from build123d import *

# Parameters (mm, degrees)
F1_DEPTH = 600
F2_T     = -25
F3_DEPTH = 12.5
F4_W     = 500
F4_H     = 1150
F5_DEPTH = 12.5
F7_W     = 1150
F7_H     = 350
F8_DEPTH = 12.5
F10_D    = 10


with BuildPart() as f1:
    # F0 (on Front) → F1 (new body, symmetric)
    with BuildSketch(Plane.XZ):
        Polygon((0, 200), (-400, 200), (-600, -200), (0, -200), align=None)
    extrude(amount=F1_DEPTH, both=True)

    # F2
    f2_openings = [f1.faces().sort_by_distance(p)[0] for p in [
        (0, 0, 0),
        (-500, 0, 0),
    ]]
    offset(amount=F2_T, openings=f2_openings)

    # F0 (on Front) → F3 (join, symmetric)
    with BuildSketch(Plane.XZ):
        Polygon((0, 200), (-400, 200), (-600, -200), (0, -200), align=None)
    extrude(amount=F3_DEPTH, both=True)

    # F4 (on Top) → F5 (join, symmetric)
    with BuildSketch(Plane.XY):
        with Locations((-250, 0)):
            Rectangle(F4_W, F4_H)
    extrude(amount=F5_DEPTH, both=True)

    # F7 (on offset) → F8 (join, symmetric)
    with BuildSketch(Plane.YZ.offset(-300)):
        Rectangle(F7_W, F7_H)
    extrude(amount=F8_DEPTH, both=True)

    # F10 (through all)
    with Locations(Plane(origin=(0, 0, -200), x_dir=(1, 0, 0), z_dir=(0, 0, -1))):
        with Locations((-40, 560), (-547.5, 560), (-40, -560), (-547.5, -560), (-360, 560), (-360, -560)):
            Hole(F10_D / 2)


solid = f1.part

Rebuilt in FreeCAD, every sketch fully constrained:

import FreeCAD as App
import Part
import Sketcher
from FreeCAD import Vector
Q = App.Units.Quantity


def faces_at(feature, points):
    """Names of the faces that lie closest to the given points."""
    faces = feature.Shape.Faces
    near = lambda p: min(range(len(faces)), key=lambda i: faces[i].distToShape(Part.Vertex(*p))[0])
    return sorted({f"Face{near(p) + 1}" for p in points})

doc = App.newDocument("Part")
body = doc.addObject("PartDesign::Body", "Body")

sketch1 = body.newObject("Sketcher::SketchObject", "Sketch")
sketch1.AttachmentSupport = (doc.getObject("XZ_Plane"), [""])
sketch1.MapMode = "FlatFace"
sketch1.addGeometry([
    Part.LineSegment(Vector(0, 200, 0), Vector(-400, 200, 0)),
    Part.LineSegment(Vector(-400, 200, 0), Vector(-600, -200, 0)),
    Part.LineSegment(Vector(-600, -200, 0), Vector(0, -200, 0)),
    Part.LineSegment(Vector(0, -200, 0), Vector(0, 200, 0)),
], False)
sketch1.addConstraint([
    Sketcher.Constraint("Coincident", 0, 2, 1, 1),
    Sketcher.Constraint("Coincident", 1, 2, 2, 1),
    Sketcher.Constraint("Coincident", 2, 2, 3, 1),
    Sketcher.Constraint("Coincident", 3, 2, 0, 1),
    Sketcher.Constraint("Horizontal", 0),
    Sketcher.Constraint("Horizontal", 2),
    Sketcher.Constraint("Vertical", 3),
    Sketcher.Constraint("Symmetric", 2, 2, 3, 2, -1, 1),
    Sketcher.Constraint("Equal", 0, 3),
    Sketcher.Constraint("DistanceX", 0, 2, 0, 1, Q("400 mm")),
    Sketcher.Constraint("DistanceX", 2, 1, 2, 2, Q("600 mm")),
])
pad1 = body.newObject("PartDesign::Pad", "Pad")
pad1.Profile = sketch1
pad1.Length = 1200
pad1.Midplane = True
doc.recompute()

thickness = body.newObject("PartDesign::Thickness", "Thickness")
thickness.Base = (pad1, faces_at(pad1, [(0, 0, 0), (-500, 0, 0)]))
thickness.Value = 25
thickness.Reversed = True
thickness.Join = "Arc"

sketch2 = body.newObject("Sketcher::SketchObject", "Sketch001")
sketch2.AttachmentSupport = (doc.getObject("XZ_Plane"), [""])
sketch2.MapMode = "FlatFace"
sketch2.addGeometry([
    Part.LineSegment(Vector(0, 200, 0), Vector(-400, 200, 0)),
    Part.LineSegment(Vector(-400, 200, 0), Vector(-600, -200, 0)),
    Part.LineSegment(Vector(-600, -200, 0), Vector(0, -200, 0)),
    Part.LineSegment(Vector(0, -200, 0), Vector(0, 200, 0)),
], False)
sketch2.addConstraint([
    Sketcher.Constraint("Coincident", 0, 2, 1, 1),
    Sketcher.Constraint("Coincident", 1, 2, 2, 1),
    Sketcher.Constraint("Coincident", 2, 2, 3, 1),
    Sketcher.Constraint("Coincident", 3, 2, 0, 1),
    Sketcher.Constraint("Horizontal", 0),
    Sketcher.Constraint("Horizontal", 2),
    Sketcher.Constraint("Vertical", 3),
    Sketcher.Constraint("Symmetric", 2, 2, 3, 2, -1, 1),
    Sketcher.Constraint("Equal", 0, 3),
    Sketcher.Constraint("DistanceX", 0, 2, 0, 1, Q("400 mm")),
    Sketcher.Constraint("DistanceX", 2, 1, 2, 2, Q("600 mm")),
])
pad2 = body.newObject("PartDesign::Pad", "Pad001")
pad2.Profile = sketch2
pad2.Length = 25
pad2.Midplane = True

sketch3 = body.newObject("Sketcher::SketchObject", "Sketch002")
sketch3.AttachmentSupport = (doc.getObject("XY_Plane"), [""])
sketch3.MapMode = "FlatFace"
sketch3.addGeometry([
    Part.LineSegment(Vector(-500, 575, 0), Vector(-500, -575, 0)),
    Part.LineSegment(Vector(-500, -575, 0), Vector(0, -575, 0)),
    Part.LineSegment(Vector(0, -575, 0), Vector(0, 575, 0)),
    Part.LineSegment(Vector(0, 575, 0), Vector(-500, 575, 0)),
], False)
sketch3.addConstraint([
    Sketcher.Constraint("Coincident", 0, 2, 1, 1),
    Sketcher.Constraint("Coincident", 1, 2, 2, 1),
    Sketcher.Constraint("Coincident", 2, 2, 3, 1),
    Sketcher.Constraint("Coincident", 3, 2, 0, 1),
    Sketcher.Constraint("Vertical", 0),
    Sketcher.Constraint("Horizontal", 1),
    Sketcher.Constraint("Vertical", 2),
    Sketcher.Constraint("Horizontal", 3),
    Sketcher.Constraint("Symmetric", 1, 2, 2, 2, -1, 1),
    Sketcher.Constraint("DistanceX", 1, 1, 1, 2, Q("500 mm")),
    Sketcher.Constraint("DistanceY", 0, 2, 0, 1, Q("1150 mm")),
])
pad3 = body.newObject("PartDesign::Pad", "Pad002")
pad3.Profile = sketch3
pad3.Length = 25
pad3.Midplane = True

sketch4 = body.newObject("Sketcher::SketchObject", "Sketch003")
sketch4.AttachmentSupport = (doc.getObject("YZ_Plane"), [""])
sketch4.MapMode = "FlatFace"
sketch4.AttachmentOffset = App.Placement(Vector(0, 0, -300), App.Rotation())
sketch4.addGeometry([
    Part.LineSegment(Vector(-575, 175, 0), Vector(-575, -175, 0)),
    Part.LineSegment(Vector(-575, -175, 0), Vector(575, -175, 0)),
    Part.LineSegment(Vector(575, -175, 0), Vector(575, 175, 0)),
    Part.LineSegment(Vector(575, 175, 0), Vector(-575, 175, 0)),
], False)
sketch4.addConstraint([
    Sketcher.Constraint("Coincident", 0, 2, 1, 1),
    Sketcher.Constraint("Coincident", 1, 2, 2, 1),
    Sketcher.Constraint("Coincident", 2, 2, 3, 1),
    Sketcher.Constraint("Coincident", 3, 2, 0, 1),
    Sketcher.Constraint("Vertical", 0),
    Sketcher.Constraint("Horizontal", 1),
    Sketcher.Constraint("Vertical", 2),
    Sketcher.Constraint("Horizontal", 3),
    Sketcher.Constraint("Symmetric", 0, 2, 2, 2, -1, 1),
    Sketcher.Constraint("DistanceX", 1, 1, 1, 2, Q("1150 mm")),
    Sketcher.Constraint("DistanceY", 0, 2, 0, 1, Q("350 mm")),
])
pad4 = body.newObject("PartDesign::Pad", "Pad003")
pad4.Profile = sketch4
pad4.Length = 25
pad4.Midplane = True

sketch5 = body.newObject("Sketcher::SketchObject", "Sketch004")
sketch5.AttachmentSupport = (doc.getObject("XY_Plane"), [""])
sketch5.MapMode = "FlatFace"
sketch5.AttachmentOffset = App.Placement(Vector(0, 0, -200), App.Rotation())
sketch5.addGeometry([
    Part.Circle(Vector(-40, -560, 0), Vector(0, 0, 1), 5),
    Part.Circle(Vector(-548, -560, 0), Vector(0, 0, 1), 5),
    Part.Circle(Vector(-40, 560, 0), Vector(0, 0, 1), 5),
    Part.Circle(Vector(-548, 560, 0), Vector(0, 0, 1), 5),
    Part.Circle(Vector(-360, -560, 0), Vector(0, 0, 1), 5),
    Part.Circle(Vector(-360, 560, 0), Vector(0, 0, 1), 5),
], False)
sketch5.addConstraint([
    Sketcher.Constraint("Equal", 0, 1),
    Sketcher.Constraint("Equal", 1, 2),
    Sketcher.Constraint("Equal", 2, 3),
    Sketcher.Constraint("Equal", 3, 4),
    Sketcher.Constraint("Equal", 4, 5),
    Sketcher.Constraint("Symmetric", 0, 3, 2, 3, -1),
    Sketcher.Constraint("Symmetric", 1, 3, 3, 3, -1),
    Sketcher.Constraint("Symmetric", 4, 3, 5, 3, -1),
    Sketcher.Constraint("Horizontal", 0, 3, 1, 3),
    Sketcher.Constraint("Horizontal", 1, 3, 4, 3),
    Sketcher.Constraint("Diameter", 0, Q("10 mm")),
    Sketcher.Constraint("DistanceX", 0, 3, -1, 1, Q("40 mm")),
    Sketcher.Constraint("DistanceY", 0, 3, -1, 1, Q("560 mm")),
    Sketcher.Constraint("DistanceX", 4, 3, -1, 1, Q("360 mm")),
    Sketcher.Constraint("DistanceX", 1, 3, -1, 1, Q("547.5 mm")),
])
doc.recompute()
hole = body.newObject("PartDesign::Hole", "Hole")
hole.Profile = sketch5
hole.ThreadType = "None"
hole.Diameter = 10
hole.DepthType = "ThroughAll"
hole.Reversed = True

doc.recompute()
